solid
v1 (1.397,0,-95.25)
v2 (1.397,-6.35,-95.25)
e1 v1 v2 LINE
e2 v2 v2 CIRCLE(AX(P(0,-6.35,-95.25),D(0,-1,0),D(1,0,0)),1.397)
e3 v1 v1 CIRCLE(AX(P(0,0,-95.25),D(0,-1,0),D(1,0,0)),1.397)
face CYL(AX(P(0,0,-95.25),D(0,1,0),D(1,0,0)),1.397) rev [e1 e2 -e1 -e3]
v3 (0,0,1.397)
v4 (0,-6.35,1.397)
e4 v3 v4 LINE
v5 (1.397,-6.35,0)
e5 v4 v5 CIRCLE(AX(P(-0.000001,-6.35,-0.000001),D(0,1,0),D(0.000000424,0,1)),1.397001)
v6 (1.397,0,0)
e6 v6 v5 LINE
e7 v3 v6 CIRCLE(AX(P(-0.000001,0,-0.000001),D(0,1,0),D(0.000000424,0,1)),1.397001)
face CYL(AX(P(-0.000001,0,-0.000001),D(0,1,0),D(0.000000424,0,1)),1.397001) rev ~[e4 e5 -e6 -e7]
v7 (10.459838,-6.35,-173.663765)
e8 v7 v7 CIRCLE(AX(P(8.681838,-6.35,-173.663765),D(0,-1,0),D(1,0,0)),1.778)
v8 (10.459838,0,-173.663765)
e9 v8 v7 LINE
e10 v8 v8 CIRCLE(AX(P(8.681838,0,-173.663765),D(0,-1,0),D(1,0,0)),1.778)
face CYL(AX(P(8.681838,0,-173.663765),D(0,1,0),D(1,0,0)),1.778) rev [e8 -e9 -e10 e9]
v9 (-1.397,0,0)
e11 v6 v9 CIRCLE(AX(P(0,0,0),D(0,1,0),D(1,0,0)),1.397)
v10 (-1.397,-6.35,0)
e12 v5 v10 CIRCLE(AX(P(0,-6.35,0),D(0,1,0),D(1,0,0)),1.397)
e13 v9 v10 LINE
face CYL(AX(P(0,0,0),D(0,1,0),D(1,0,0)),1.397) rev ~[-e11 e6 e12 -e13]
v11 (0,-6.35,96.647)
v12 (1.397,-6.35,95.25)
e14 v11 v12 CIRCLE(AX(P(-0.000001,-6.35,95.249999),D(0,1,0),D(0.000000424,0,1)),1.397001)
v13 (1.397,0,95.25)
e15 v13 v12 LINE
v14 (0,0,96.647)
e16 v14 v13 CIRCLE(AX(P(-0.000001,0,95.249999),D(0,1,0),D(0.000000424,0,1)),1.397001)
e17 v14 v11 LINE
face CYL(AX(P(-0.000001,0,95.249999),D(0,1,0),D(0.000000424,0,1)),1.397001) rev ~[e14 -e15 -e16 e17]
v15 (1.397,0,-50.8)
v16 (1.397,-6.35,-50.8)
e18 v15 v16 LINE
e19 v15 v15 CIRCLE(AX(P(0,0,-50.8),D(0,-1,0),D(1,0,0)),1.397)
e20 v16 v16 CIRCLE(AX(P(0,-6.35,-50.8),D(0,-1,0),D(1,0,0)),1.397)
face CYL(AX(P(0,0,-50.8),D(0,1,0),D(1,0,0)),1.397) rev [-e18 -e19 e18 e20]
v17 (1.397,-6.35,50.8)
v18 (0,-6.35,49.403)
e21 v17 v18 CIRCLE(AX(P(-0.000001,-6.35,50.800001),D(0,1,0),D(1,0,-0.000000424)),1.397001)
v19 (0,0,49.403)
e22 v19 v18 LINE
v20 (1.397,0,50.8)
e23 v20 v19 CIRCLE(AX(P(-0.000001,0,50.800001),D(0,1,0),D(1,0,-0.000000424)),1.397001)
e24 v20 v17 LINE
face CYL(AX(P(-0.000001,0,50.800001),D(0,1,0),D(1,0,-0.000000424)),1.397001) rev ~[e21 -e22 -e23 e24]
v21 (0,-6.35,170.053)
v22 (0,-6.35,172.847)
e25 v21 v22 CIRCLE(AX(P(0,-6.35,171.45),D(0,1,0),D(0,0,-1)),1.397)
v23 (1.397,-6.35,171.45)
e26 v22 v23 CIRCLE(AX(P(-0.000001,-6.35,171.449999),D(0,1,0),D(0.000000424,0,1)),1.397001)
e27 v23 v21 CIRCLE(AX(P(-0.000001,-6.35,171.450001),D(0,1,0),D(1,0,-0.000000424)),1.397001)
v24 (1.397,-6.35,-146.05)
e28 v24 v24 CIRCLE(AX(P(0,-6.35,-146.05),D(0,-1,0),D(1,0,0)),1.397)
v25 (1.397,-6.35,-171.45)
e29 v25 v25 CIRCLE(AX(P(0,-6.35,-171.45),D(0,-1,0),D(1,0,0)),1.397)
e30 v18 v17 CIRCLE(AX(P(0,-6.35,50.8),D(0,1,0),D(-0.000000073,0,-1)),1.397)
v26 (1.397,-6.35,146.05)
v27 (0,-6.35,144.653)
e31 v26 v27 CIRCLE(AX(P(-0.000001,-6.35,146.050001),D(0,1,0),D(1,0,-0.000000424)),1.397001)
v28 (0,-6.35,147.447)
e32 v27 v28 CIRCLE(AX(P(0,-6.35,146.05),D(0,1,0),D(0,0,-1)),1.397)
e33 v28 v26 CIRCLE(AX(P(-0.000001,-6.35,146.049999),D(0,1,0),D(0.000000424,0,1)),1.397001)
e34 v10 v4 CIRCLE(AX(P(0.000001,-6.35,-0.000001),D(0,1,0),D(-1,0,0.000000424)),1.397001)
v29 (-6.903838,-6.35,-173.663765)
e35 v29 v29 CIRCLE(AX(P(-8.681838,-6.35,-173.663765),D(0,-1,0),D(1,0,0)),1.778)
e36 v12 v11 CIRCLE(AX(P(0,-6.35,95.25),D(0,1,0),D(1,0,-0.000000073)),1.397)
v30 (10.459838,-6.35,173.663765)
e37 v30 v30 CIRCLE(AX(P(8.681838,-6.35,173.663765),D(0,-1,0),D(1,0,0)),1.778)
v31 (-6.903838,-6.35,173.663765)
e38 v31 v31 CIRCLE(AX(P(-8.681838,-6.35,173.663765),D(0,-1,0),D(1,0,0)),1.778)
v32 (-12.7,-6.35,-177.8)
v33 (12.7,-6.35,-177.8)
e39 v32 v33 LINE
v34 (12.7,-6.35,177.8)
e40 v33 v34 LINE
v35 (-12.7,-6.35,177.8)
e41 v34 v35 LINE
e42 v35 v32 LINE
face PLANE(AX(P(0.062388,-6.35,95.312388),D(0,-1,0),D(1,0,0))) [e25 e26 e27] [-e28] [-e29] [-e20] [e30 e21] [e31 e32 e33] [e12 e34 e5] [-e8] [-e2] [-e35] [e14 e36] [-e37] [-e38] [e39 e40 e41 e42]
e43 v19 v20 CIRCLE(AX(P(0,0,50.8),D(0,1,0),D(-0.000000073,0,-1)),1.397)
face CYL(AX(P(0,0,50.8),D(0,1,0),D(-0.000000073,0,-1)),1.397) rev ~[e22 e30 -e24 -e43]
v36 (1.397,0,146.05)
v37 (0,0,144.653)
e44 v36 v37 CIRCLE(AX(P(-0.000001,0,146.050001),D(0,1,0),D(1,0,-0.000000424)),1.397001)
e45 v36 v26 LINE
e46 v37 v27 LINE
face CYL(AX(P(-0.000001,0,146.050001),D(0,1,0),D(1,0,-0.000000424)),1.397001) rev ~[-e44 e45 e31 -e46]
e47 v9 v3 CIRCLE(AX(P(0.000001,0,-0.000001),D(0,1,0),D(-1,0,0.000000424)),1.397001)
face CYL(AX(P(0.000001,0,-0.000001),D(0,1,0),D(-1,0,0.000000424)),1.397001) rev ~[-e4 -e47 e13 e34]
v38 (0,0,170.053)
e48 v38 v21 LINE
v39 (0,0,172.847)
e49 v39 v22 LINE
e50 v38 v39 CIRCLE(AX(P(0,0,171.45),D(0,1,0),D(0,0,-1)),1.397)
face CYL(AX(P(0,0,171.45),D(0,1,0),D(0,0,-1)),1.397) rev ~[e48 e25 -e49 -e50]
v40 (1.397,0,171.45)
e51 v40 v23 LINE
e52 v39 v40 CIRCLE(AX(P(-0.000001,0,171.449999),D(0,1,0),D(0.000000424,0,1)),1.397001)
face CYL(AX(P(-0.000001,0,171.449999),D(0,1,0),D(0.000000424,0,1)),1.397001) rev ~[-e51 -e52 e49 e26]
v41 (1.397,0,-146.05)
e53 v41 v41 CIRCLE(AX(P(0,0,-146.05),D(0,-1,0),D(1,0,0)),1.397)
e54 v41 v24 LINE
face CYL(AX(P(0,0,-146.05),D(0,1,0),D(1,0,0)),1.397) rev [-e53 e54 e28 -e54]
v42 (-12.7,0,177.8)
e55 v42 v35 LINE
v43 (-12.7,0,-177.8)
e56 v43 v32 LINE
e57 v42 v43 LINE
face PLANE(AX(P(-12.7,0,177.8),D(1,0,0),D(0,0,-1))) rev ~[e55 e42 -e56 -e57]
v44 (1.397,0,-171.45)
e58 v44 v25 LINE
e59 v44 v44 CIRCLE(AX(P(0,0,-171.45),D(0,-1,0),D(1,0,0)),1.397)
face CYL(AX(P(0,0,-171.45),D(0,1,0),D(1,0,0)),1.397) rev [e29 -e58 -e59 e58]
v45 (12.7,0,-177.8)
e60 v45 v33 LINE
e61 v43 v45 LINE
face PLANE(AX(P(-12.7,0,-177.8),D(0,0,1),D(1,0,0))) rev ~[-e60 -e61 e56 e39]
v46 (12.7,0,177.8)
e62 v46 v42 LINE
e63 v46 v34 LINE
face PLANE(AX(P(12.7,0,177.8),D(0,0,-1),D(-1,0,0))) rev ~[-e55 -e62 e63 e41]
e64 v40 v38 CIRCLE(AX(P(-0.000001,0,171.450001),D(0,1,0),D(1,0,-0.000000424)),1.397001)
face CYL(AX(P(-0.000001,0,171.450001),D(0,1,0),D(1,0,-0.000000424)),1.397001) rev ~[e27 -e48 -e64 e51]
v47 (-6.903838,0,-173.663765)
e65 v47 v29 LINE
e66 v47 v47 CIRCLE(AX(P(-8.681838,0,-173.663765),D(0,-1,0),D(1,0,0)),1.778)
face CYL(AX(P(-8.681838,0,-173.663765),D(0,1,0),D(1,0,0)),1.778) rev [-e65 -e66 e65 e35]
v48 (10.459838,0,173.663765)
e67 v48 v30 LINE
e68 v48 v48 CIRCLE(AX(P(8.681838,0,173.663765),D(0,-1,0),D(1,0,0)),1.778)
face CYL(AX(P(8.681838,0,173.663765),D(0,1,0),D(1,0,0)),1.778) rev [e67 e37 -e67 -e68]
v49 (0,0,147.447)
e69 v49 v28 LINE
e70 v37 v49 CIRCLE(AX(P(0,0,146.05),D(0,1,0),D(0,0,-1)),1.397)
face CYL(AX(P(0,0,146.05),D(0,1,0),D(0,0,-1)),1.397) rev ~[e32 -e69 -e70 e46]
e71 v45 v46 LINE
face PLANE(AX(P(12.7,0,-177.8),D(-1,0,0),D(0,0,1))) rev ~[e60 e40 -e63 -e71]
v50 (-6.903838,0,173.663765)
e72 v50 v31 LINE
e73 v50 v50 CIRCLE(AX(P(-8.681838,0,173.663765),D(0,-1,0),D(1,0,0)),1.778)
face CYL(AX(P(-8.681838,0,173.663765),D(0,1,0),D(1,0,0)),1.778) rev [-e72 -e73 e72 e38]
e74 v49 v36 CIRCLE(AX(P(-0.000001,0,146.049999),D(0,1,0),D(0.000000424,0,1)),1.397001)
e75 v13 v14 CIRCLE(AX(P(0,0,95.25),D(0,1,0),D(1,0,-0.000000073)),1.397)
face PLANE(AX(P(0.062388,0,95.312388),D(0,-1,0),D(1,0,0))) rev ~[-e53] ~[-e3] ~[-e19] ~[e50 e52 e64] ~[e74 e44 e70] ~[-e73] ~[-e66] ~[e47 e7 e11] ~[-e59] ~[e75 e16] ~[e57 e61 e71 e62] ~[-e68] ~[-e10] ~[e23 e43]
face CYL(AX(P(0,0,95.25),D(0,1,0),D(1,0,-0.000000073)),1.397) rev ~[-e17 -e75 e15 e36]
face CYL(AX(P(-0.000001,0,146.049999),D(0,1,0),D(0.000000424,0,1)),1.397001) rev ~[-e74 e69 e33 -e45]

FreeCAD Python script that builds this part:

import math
import FreeCAD as App
import Part
import Sketcher
Q = App.Units.Quantity

doc = App.newDocument("Part")
body = doc.addObject("PartDesign::Body", "Body")

sketch1 = body.newObject("Sketcher::SketchObject", "Sketch")
sketch1.AttachmentSupport = (doc.getObject("XZ_Plane"), [""])
sketch1.MapMode = "FlatFace"
sketch1.addGeometry(Part.LineSegment(App.Vector(12.7, 177.8, 0), App.Vector(-12.7, 177.8, 0)), False)
sketch1.addGeometry(Part.LineSegment(App.Vector(-12.7, 177.8, 0), App.Vector(-12.7, -177.8, 0)), False)
sketch1.addGeometry(Part.LineSegment(App.Vector(-12.7, -177.8, 0), App.Vector(12.7, -177.8, 0)), False)
sketch1.addGeometry(Part.LineSegment(App.Vector(12.7, -177.8, 0), App.Vector(12.7, 177.8, 0)), False)
sketch1.addGeometry(Part.Circle(App.Vector(-8.7, -173.7, 0), App.Vector(0, 0, 1), 1.8), False)
sketch1.addGeometry(Part.Circle(App.Vector(0, -171.4, 0), App.Vector(0, 0, 1), 1.4), False)
sketch1.addGeometry(Part.Circle(App.Vector(0, -146.1, 0), App.Vector(0, 0, 1), 1.4), False)
sketch1.addGeometry(Part.Circle(App.Vector(0, -95.2, 0), App.Vector(0, 0, 1), 1.4), False)
sketch1.addGeometry(Part.Circle(App.Vector(8.7, -173.7, 0), App.Vector(0, 0, 1), 1.8), False)
sketch1.addGeometry(Part.Circle(App.Vector(0, -50.8, 0), App.Vector(0, 0, 1), 1.4), False)
sketch1.addGeometry(Part.Circle(App.Vector(-8.7, 173.7, 0), App.Vector(0, 0, 1), 1.8), False)
sketch1.addGeometry(Part.ArcOfCircle(Part.Circle(App.Vector(0, 146.1, 0), App.Vector(0, 0, 1), 1.4), math.radians(-90), math.radians(0)), False)
sketch1.addGeometry(Part.ArcOfCircle(Part.Circle(App.Vector(0, 146.1, 0), App.Vector(0, 0, 1), 1.4), math.radians(90), math.radians(270)), False)
sketch1.addGeometry(Part.ArcOfCircle(Part.Circle(App.Vector(0, 146, 0), App.Vector(0, 0, 1), 1.4), math.radians(0), math.radians(90)), False)
sketch1.addGeometry(Part.ArcOfCircle(Part.Circle(App.Vector(0, 171.5, 0), App.Vector(0, 0, 1), 1.4), math.radians(-90), math.radians(0)), False)
sketch1.addGeometry(Part.ArcOfCircle(Part.Circle(App.Vector(0, 171.4, 0), App.Vector(0, 0, 1), 1.4), math.radians(90), math.radians(270)), False)
sketch1.addGeometry(Part.ArcOfCircle(Part.Circle(App.Vector(0, 171.4, 0), App.Vector(0, 0, 1), 1.4), math.radians(0), math.radians(90)), False)
sketch1.addGeometry(Part.ArcOfCircle(Part.Circle(App.Vector(0, 0, 0), App.Vector(0, 0, 1), 1.4), math.radians(0), math.radians(90)), False)
sketch1.addGeometry(Part.ArcOfCircle(Part.Circle(App.Vector(0, 0, 0), App.Vector(0, 0, 1), 1.4), math.radians(180), math.radians(360)), False)
sketch1.addGeometry(Part.ArcOfCircle(Part.Circle(App.Vector(0, 0, 0), App.Vector(0, 0, 1), 1.4), math.radians(90), math.radians(180)), False)
sketch1.addGeometry(Part.ArcOfCircle(Part.Circle(App.Vector(0, 50.8, 0), App.Vector(0, 0, 1), 1.4), math.radians(0), math.radians(270)), False)
sketch1.addGeometry(Part.ArcOfCircle(Part.Circle(App.Vector(0, 50.8, 0), App.Vector(0, 0, 1), 1.4), math.radians(-90), math.radians(0)), False)
sketch1.addGeometry(Part.ArcOfCircle(Part.Circle(App.Vector(0, 95.2, 0), App.Vector(0, 0, 1), 1.4), math.radians(0), math.radians(90)), False)
sketch1.addGeometry(Part.ArcOfCircle(Part.Circle(App.Vector(0, 95.3, 0), App.Vector(0, 0, 1), 1.4), math.radians(90), math.radians(360)), False)
sketch1.addGeometry(Part.Circle(App.Vector(8.7, 173.7, 0), App.Vector(0, 0, 1), 1.8), False)
sketch1.addConstraint(Sketcher.Constraint("Coincident", 0, 2, 1, 1))
sketch1.addConstraint(Sketcher.Constraint("Coincident", 1, 2, 2, 1))
sketch1.addConstraint(Sketcher.Constraint("Coincident", 2, 2, 3, 1))
sketch1.addConstraint(Sketcher.Constraint("Coincident", 3, 2, 0, 1))
sketch1.addConstraint(Sketcher.Constraint("Tangent", 11, 1, 12, 2))
sketch1.addConstraint(Sketcher.Constraint("Tangent", 12, 1, 13, 2))
sketch1.addConstraint(Sketcher.Constraint("Tangent", 13, 1, 11, 2))
sketch1.addConstraint(Sketcher.Constraint("Tangent", 14, 1, 15, 2))
sketch1.addConstraint(Sketcher.Constraint("Tangent", 15, 1, 16, 2))
sketch1.addConstraint(Sketcher.Constraint("Tangent", 16, 1, 14, 2))
sketch1.addConstraint(Sketcher.Constraint("Tangent", 17, 1, 18, 2))
sketch1.addConstraint(Sketcher.Constraint("Tangent", 18, 1, 19, 2))
sketch1.addConstraint(Sketcher.Constraint("Tangent", 19, 1, 17, 2))
sketch1.addConstraint(Sketcher.Constraint("Tangent", 20, 1, 21, 2))
sketch1.addConstraint(Sketcher.Constraint("Coincident", 21, 1, 20, 2))
sketch1.addConstraint(Sketcher.Constraint("Tangent", 22, 1, 23, 2))
sketch1.addConstraint(Sketcher.Constraint("Coincident", 23, 1, 22, 2))
sketch1.addConstraint(Sketcher.Constraint("Horizontal", 0))
sketch1.addConstraint(Sketcher.Constraint("Vertical", 1))
sketch1.addConstraint(Sketcher.Constraint("Horizontal", 2))
sketch1.addConstraint(Sketcher.Constraint("Vertical", 3))
sketch1.addConstraint(Sketcher.Constraint("Coincident", 17, 3, -1, 1))
sketch1.addConstraint(Sketcher.Constraint("Equal", 5, 6))
sketch1.addConstraint(Sketcher.Constraint("Equal", 6, 7))
sketch1.addConstraint(Sketcher.Constraint("Equal", 4, 8))
sketch1.addConstraint(Sketcher.Constraint("Equal", 7, 9))
sketch1.addConstraint(Sketcher.Constraint("Equal", 8, 10))
sketch1.addConstraint(Sketcher.Constraint("Equal", 9, 11))
sketch1.addConstraint(Sketcher.Constraint("Equal", 13, 14))
sketch1.addConstraint(Sketcher.Constraint("Equal", 16, 17))
sketch1.addConstraint(Sketcher.Constraint("Equal", 19, 20))
sketch1.addConstraint(Sketcher.Constraint("Equal", 21, 22))
sketch1.addConstraint(Sketcher.Constraint("Equal", 10, 24))
sketch1.addConstraint(Sketcher.Constraint("Symmetric", 8, 3, 10, 3, -1, 1))
sketch1.addConstraint(Sketcher.Constraint("Symmetric", 6, 3, 11, 3, -1, 1))
sketch1.addConstraint(Sketcher.Constraint("Symmetric", 5, 3, 14, 3, -1, 1))
sketch1.addConstraint(Sketcher.Constraint("Symmetric", 9, 3, 20, 3, -1, 1))
sketch1.addConstraint(Sketcher.Constraint("Symmetric", 7, 3, 22, 3, -1, 1))
sketch1.addConstraint(Sketcher.Constraint("Symmetric", 4, 3, 24, 3, -1, 1))
sketch1.addConstraint(Sketcher.Constraint("Symmetric", 0, 2, 2, 2, -1, 1))
sketch1.addConstraint(Sketcher.Constraint("Symmetric", 4, 3, 8, 3, -2))
sketch1.addConstraint(Sketcher.Constraint("PointOnObject", 5, 3, -2))
sketch1.addConstraint(Sketcher.Constraint("PointOnObject", 6, 3, -2))
sketch1.addConstraint(Sketcher.Constraint("PointOnObject", 7, 3, -2))
sketch1.addConstraint(Sketcher.Constraint("PointOnObject", 9, 3, -2))
sketch1.addConstraint(Sketcher.Constraint("PointOnObject", 11, 1, -2))
sketch1.addConstraint(Sketcher.Constraint("PointOnObject", 12, 1, -2))
sketch1.addConstraint(Sketcher.Constraint("PointOnObject", 14, 1, -2))
sketch1.addConstraint(Sketcher.Constraint("PointOnObject", 15, 1, -2))
sketch1.addConstraint(Sketcher.Constraint("PointOnObject", 17, 1, -1))
sketch1.addConstraint(Sketcher.Constraint("PointOnObject", 18, 1, -1))
sketch1.addConstraint(Sketcher.Constraint("PointOnObject", 19, 1, -2))
sketch1.addConstraint(Sketcher.Constraint("PointOnObject", 21, 1, -2))
sketch1.addConstraint(Sketcher.Constraint("PointOnObject", 23, 1, -2))
sketch1.addConstraint(Sketcher.Constraint("Horizontal", 12, 3, 13, 1))
sketch1.addConstraint(Sketcher.Constraint("Horizontal", 15, 3, 16, 1))
sketch1.addConstraint(Sketcher.Constraint("Horizontal", 21, 3, 20, 1))
sketch1.addConstraint(Sketcher.Constraint("Horizontal", 23, 3, 22, 1))
sketch1.addConstraint(Sketcher.Constraint("Diameter", 4, Q("0.14 in")))
sketch1.addConstraint(Sketcher.Constraint("Diameter", 5, Q("0.11 in")))
sketch1.addConstraint(Sketcher.Constraint("DistanceX", 0, 2, 0, 1, Q("1 in")))
sketch1.addConstraint(Sketcher.Constraint("DistanceY", 1, 2, 1, 1, Q("14 in")))
sketch1.addConstraint(Sketcher.Constraint("DistanceY", 9, 3, -1, 1, Q("2 in")))
sketch1.addConstraint(Sketcher.Constraint("DistanceY", 5, 3, 6, 3, Q("1 in")))
sketch1.addConstraint(Sketcher.Constraint("DistanceY", 6, 3, 7, 3, Q("2 in")))
sketch1.addConstraint(Sketcher.Constraint("DistanceY", 7, 3, 11, 3, Q("9.5 in")))
sketch1.addConstraint(Sketcher.Constraint("DistanceX", 4, 3, -1, 1, Q("8.681838 mm")))
sketch1.addConstraint(Sketcher.Constraint("DistanceY", 4, 3, 10, 3, Q("347.32753 mm")))
pad1 = body.newObject("PartDesign::Pad", "Pad")
pad1.Profile = sketch1
pad1.Length = Q("0.25 in")

doc.recompute()
